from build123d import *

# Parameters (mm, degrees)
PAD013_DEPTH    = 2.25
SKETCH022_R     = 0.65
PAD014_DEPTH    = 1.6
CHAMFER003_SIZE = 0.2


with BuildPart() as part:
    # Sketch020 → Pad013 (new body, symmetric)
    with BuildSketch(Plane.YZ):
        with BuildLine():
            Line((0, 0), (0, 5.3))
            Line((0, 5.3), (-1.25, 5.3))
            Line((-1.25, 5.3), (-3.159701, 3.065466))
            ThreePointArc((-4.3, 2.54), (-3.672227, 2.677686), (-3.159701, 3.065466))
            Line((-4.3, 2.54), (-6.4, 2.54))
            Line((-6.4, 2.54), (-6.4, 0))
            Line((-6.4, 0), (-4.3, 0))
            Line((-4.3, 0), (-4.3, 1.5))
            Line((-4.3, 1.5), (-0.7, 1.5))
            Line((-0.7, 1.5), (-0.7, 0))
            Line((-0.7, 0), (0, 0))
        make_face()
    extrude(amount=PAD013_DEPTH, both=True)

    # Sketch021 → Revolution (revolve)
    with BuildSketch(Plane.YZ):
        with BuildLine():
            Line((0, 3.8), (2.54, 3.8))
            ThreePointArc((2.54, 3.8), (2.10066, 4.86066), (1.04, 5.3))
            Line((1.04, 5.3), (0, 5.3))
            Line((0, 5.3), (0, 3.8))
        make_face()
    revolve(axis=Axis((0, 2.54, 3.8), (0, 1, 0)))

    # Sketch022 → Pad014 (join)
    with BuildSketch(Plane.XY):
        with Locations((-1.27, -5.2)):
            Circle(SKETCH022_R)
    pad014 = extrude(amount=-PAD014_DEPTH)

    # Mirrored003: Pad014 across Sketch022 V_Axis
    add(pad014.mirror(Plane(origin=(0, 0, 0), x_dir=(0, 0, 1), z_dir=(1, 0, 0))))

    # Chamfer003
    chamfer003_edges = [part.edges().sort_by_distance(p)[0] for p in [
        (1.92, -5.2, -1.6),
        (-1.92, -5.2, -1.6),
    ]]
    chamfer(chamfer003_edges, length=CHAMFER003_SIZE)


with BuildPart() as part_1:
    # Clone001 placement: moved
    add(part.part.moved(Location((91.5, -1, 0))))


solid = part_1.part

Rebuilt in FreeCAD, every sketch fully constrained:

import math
import FreeCAD as App
import Part
import Sketcher
from FreeCAD import Vector
Q = App.Units.Quantity


def edges_at(feature, points):
    """Names of the edges that pass closest to the given points."""
    edges = feature.Shape.Edges
    near = lambda p: min(range(len(edges)), key=lambda i: edges[i].distToShape(Part.Vertex(*p))[0])
    return sorted({f"Edge{near(p) + 1}" for p in points})

doc = App.newDocument("Part")
body = doc.addObject("PartDesign::Body", "Body")

# Sketch on YZ plane
sketch1 = body.newObject("Sketcher::SketchObject", "Sketch")
sketch1.AttachmentSupport = (doc.getObject("YZ_Plane"), [""])
sketch1.MapMode = "FlatFace"
sketch1.addGeometry(Part.LineSegment(Vector(0, 0, 0), Vector(0, 5.3, 0)), False)
sketch1.addGeometry(Part.LineSegment(Vector(0, 5.3, 0), Vector(-1.2, 5.3, 0)), False)
sketch1.addGeometry(Part.LineSegment(Vector(-1.2, 5.3, 0), Vector(-3.2, 3.1, 0)), False)
sketch1.addGeometry(Part.ArcOfCircle(Part.Circle(Vector(-4.3, 4, 0), Vector(0, 0, 1), 1.5), math.radians(-90), math.radians(-41)), False)
sketch1.addGeometry(Part.LineSegment(Vector(-4.3, 2.5, 0), Vector(-6.4, 2.5, 0)), False)
sketch1.addGeometry(Part.LineSegment(Vector(-6.4, 2.5, 0), Vector(-6.4, 0, 0)), False)
sketch1.addGeometry(Part.LineSegment(Vector(-6.4, 0, 0), Vector(-4.3, 0, 0)), False)
sketch1.addGeometry(Part.LineSegment(Vector(-4.3, 0, 0), Vector(-4.3, 1.5, 0)), False)
sketch1.addGeometry(Part.LineSegment(Vector(-4.3, 1.5, 0), Vector(-0.7, 1.5, 0)), False)
sketch1.addGeometry(Part.LineSegment(Vector(-0.7, 1.5, 0), Vector(-0.7, 0, 0)), False)
sketch1.addGeometry(Part.LineSegment(Vector(-0.7, 0, 0), Vector(0, 0, 0)), False)
sketch1.addConstraint(Sketcher.Constraint("Coincident", 0, 2, 1, 1))
sketch1.addConstraint(Sketcher.Constraint("Coincident", 1, 2, 2, 1))
sketch1.addConstraint(Sketcher.Constraint("Tangent", 2, 2, 3, 2))
sketch1.addConstraint(Sketcher.Constraint("Tangent", 3, 1, 4, 1))
sketch1.addConstraint(Sketcher.Constraint("Coincident", 4, 2, 5, 1))
sketch1.addConstraint(Sketcher.Constraint("Coincident", 5, 2, 6, 1))
sketch1.addConstraint(Sketcher.Constraint("Coincident", 6, 2, 7, 1))
sketch1.addConstraint(Sketcher.Constraint("Coincident", 7, 2, 8, 1))
sketch1.addConstraint(Sketcher.Constraint("Coincident", 8, 2, 9, 1))
sketch1.addConstraint(Sketcher.Constraint("Coincident", 9, 2, 10, 1))
sketch1.addConstraint(Sketcher.Constraint("Coincident", 10, 2, 0, 1))
sketch1.addConstraint(Sketcher.Constraint("Vertical", 0))
sketch1.addConstraint(Sketcher.Constraint("Horizontal", 1))
sketch1.addConstraint(Sketcher.Constraint("Horizontal", 4))
sketch1.addConstraint(Sketcher.Constraint("Vertical", 5))
sketch1.addConstraint(Sketcher.Constraint("Horizontal", 6))
sketch1.addConstraint(Sketcher.Constraint("Vertical", 7))
sketch1.addConstraint(Sketcher.Constraint("Horizontal", 8))
sketch1.addConstraint(Sketcher.Constraint("Vertical", 9))
sketch1.addConstraint(Sketcher.Constraint("Horizontal", 10))
sketch1.addConstraint(Sketcher.Constraint("Coincident", 10, 2, -1, 1))
sketch1.addConstraint(Sketcher.Constraint("PointOnObject", 5, 2, -1))
sketch1.addConstraint(Sketcher.Constraint("Vertical", 3, 1, 6, 2))
sketch1.addConstraint(Sketcher.Constraint("DistanceX", 4, 2, 4, 1, Q("2.1 mm")))
sketch1.addConstraint(Sketcher.Constraint("DistanceX", 8, 1, 8, 2, Q("3.6 mm")))
sketch1.addConstraint(Sketcher.Constraint("DistanceX", 10, 1, 10, 2, Q("0.7 mm")))
sketch1.addConstraint(Sketcher.Constraint("DistanceY", 0, 1, 0, 2, Q("5.3 mm")))
sketch1.addConstraint(Sketcher.Constraint("DistanceY", 7, 1, 7, 2, Q("1.5 mm")))
sketch1.addConstraint(Sketcher.Constraint("DistanceX", 1, 2, 1, 1, Q("1.25 mm")))
sketch1.addConstraint(Sketcher.Constraint("DistanceY", 5, 2, 5, 1, Q("2.54 mm")))
sketch1.addConstraint(Sketcher.Constraint("Radius", 3, Q("1.500002 mm")))
pad1 = body.newObject("PartDesign::Pad", "Pad")
pad1.Profile = sketch1
pad1.Length = 4.5
pad1.Midplane = True

# Sketch on YZ plane
sketch2 = body.newObject("Sketcher::SketchObject", "Sketch001")
sketch2.AttachmentSupport = (doc.getObject("YZ_Plane"), [""])
sketch2.MapMode = "FlatFace"
sketch2.addGeometry(Part.LineSegment(Vector(0, 3.8, 0), Vector(2.5, 3.8, 0)), False)
sketch2.addGeometry(Part.ArcOfCircle(Part.Circle(Vector(1, 3.8, 0), Vector(0, 0, 1), 1.5), math.radians(0), math.radians(90)), False)
sketch2.addGeometry(Part.LineSegment(Vector(1, 5.3, 0), Vector(0, 5.3, 0)), False)
sketch2.addGeometry(Part.LineSegment(Vector(0, 5.3, 0), Vector(0, 3.8, 0)), False)
sketch2.addGeometry(Part.LineSegment(Vector(0, 3.8, 0), Vector(2.5, 3.8, 0)), True)  # axis
sketch2.addConstraint(Sketcher.Constraint("Coincident", 0, 2, 1, 1))
sketch2.addConstraint(Sketcher.Constraint("Tangent", 1, 2, 2, 1))
sketch2.addConstraint(Sketcher.Constraint("Coincident", 2, 2, 3, 1))
sketch2.addConstraint(Sketcher.Constraint("Coincident", 3, 2, 0, 1))
sketch2.addConstraint(Sketcher.Constraint("Horizontal", 0))
sketch2.addConstraint(Sketcher.Constraint("Horizontal", 2))
sketch2.addConstraint(Sketcher.Constraint("Vertical", 3))
sketch2.addConstraint(Sketcher.Constraint("Horizontal", 4))
sketch2.addConstraint(Sketcher.Constraint("Coincident", 4, 1, 3, 2))
sketch2.addConstraint(Sketcher.Constraint("PointOnObject", 2, 2, -2))
sketch2.addConstraint(Sketcher.Constraint("Horizontal", 1, 3, 0, 2))
sketch2.addConstraint(Sketcher.Constraint("Equal", 0, 4))
sketch2.addConstraint(Sketcher.Constraint("Radius", 1, Q("1.500001 mm")))
sketch2.addConstraint(Sketcher.Constraint("DistanceX", 0, 1, 0, 2, Q("2.54 mm")))
sketch2.addConstraint(Sketcher.Constraint("DistanceY", -1, 1, 1, 3, Q("3.799999 mm")))
revolution = body.newObject("PartDesign::Revolution", "Revolution")
revolution.Profile = sketch2
revolution.ReferenceAxis = (sketch2, ["Axis0"])
revolution.Angle = 360

# Sketch on XY plane
sketch3 = body.newObject("Sketcher::SketchObject", "Sketch002")
sketch3.AttachmentSupport = (doc.getObject("XY_Plane"), [""])
sketch3.MapMode = "FlatFace"
sketch3.addGeometry(Part.Circle(Vector(-1.3, -5.2, 0), Vector(0, 0, 1), 0.7), False)
sketch3.addConstraint(Sketcher.Constraint("Diameter", 0, Q("1.3 mm")))
sketch3.addConstraint(Sketcher.Constraint("DistanceY", 0, 3, -1, 1, Q("5.2 mm")))
sketch3.addConstraint(Sketcher.Constraint("DistanceX", 0, 3, -1, 1, Q("1.27 mm")))
pad2 = body.newObject("PartDesign::Pad", "Pad001")
pad2.Profile = sketch3
pad2.Length = 1.6
pad2.Reversed = True
doc.recompute()

mirrored = body.newObject("PartDesign::Mirrored", "Mirrored")
mirrored.Originals = [pad2]
mirrored.MirrorPlane = (doc.getObject("YZ_Plane"), [""])
body.Tip = mirrored
doc.recompute()

chamfer = body.newObject("PartDesign::Chamfer", "Chamfer")
chamfer.Base = (mirrored, edges_at(mirrored, [(1.92, -5.2, -1.6), (-1.92, -5.2, -1.6)]))
chamfer.Size = 0.2
body2 = doc.addObject("PartDesign::Body", "Body001")
doc.recompute()

body.Placement = App.Placement(Vector(91.5, -1, 0), App.Rotation(Vector(0, 0, 1), 0))
boolean = body2.newObject("PartDesign::Boolean", "Boolean")
boolean.Type = "Fuse"
boolean.addObjects([body])

doc.recompute()
